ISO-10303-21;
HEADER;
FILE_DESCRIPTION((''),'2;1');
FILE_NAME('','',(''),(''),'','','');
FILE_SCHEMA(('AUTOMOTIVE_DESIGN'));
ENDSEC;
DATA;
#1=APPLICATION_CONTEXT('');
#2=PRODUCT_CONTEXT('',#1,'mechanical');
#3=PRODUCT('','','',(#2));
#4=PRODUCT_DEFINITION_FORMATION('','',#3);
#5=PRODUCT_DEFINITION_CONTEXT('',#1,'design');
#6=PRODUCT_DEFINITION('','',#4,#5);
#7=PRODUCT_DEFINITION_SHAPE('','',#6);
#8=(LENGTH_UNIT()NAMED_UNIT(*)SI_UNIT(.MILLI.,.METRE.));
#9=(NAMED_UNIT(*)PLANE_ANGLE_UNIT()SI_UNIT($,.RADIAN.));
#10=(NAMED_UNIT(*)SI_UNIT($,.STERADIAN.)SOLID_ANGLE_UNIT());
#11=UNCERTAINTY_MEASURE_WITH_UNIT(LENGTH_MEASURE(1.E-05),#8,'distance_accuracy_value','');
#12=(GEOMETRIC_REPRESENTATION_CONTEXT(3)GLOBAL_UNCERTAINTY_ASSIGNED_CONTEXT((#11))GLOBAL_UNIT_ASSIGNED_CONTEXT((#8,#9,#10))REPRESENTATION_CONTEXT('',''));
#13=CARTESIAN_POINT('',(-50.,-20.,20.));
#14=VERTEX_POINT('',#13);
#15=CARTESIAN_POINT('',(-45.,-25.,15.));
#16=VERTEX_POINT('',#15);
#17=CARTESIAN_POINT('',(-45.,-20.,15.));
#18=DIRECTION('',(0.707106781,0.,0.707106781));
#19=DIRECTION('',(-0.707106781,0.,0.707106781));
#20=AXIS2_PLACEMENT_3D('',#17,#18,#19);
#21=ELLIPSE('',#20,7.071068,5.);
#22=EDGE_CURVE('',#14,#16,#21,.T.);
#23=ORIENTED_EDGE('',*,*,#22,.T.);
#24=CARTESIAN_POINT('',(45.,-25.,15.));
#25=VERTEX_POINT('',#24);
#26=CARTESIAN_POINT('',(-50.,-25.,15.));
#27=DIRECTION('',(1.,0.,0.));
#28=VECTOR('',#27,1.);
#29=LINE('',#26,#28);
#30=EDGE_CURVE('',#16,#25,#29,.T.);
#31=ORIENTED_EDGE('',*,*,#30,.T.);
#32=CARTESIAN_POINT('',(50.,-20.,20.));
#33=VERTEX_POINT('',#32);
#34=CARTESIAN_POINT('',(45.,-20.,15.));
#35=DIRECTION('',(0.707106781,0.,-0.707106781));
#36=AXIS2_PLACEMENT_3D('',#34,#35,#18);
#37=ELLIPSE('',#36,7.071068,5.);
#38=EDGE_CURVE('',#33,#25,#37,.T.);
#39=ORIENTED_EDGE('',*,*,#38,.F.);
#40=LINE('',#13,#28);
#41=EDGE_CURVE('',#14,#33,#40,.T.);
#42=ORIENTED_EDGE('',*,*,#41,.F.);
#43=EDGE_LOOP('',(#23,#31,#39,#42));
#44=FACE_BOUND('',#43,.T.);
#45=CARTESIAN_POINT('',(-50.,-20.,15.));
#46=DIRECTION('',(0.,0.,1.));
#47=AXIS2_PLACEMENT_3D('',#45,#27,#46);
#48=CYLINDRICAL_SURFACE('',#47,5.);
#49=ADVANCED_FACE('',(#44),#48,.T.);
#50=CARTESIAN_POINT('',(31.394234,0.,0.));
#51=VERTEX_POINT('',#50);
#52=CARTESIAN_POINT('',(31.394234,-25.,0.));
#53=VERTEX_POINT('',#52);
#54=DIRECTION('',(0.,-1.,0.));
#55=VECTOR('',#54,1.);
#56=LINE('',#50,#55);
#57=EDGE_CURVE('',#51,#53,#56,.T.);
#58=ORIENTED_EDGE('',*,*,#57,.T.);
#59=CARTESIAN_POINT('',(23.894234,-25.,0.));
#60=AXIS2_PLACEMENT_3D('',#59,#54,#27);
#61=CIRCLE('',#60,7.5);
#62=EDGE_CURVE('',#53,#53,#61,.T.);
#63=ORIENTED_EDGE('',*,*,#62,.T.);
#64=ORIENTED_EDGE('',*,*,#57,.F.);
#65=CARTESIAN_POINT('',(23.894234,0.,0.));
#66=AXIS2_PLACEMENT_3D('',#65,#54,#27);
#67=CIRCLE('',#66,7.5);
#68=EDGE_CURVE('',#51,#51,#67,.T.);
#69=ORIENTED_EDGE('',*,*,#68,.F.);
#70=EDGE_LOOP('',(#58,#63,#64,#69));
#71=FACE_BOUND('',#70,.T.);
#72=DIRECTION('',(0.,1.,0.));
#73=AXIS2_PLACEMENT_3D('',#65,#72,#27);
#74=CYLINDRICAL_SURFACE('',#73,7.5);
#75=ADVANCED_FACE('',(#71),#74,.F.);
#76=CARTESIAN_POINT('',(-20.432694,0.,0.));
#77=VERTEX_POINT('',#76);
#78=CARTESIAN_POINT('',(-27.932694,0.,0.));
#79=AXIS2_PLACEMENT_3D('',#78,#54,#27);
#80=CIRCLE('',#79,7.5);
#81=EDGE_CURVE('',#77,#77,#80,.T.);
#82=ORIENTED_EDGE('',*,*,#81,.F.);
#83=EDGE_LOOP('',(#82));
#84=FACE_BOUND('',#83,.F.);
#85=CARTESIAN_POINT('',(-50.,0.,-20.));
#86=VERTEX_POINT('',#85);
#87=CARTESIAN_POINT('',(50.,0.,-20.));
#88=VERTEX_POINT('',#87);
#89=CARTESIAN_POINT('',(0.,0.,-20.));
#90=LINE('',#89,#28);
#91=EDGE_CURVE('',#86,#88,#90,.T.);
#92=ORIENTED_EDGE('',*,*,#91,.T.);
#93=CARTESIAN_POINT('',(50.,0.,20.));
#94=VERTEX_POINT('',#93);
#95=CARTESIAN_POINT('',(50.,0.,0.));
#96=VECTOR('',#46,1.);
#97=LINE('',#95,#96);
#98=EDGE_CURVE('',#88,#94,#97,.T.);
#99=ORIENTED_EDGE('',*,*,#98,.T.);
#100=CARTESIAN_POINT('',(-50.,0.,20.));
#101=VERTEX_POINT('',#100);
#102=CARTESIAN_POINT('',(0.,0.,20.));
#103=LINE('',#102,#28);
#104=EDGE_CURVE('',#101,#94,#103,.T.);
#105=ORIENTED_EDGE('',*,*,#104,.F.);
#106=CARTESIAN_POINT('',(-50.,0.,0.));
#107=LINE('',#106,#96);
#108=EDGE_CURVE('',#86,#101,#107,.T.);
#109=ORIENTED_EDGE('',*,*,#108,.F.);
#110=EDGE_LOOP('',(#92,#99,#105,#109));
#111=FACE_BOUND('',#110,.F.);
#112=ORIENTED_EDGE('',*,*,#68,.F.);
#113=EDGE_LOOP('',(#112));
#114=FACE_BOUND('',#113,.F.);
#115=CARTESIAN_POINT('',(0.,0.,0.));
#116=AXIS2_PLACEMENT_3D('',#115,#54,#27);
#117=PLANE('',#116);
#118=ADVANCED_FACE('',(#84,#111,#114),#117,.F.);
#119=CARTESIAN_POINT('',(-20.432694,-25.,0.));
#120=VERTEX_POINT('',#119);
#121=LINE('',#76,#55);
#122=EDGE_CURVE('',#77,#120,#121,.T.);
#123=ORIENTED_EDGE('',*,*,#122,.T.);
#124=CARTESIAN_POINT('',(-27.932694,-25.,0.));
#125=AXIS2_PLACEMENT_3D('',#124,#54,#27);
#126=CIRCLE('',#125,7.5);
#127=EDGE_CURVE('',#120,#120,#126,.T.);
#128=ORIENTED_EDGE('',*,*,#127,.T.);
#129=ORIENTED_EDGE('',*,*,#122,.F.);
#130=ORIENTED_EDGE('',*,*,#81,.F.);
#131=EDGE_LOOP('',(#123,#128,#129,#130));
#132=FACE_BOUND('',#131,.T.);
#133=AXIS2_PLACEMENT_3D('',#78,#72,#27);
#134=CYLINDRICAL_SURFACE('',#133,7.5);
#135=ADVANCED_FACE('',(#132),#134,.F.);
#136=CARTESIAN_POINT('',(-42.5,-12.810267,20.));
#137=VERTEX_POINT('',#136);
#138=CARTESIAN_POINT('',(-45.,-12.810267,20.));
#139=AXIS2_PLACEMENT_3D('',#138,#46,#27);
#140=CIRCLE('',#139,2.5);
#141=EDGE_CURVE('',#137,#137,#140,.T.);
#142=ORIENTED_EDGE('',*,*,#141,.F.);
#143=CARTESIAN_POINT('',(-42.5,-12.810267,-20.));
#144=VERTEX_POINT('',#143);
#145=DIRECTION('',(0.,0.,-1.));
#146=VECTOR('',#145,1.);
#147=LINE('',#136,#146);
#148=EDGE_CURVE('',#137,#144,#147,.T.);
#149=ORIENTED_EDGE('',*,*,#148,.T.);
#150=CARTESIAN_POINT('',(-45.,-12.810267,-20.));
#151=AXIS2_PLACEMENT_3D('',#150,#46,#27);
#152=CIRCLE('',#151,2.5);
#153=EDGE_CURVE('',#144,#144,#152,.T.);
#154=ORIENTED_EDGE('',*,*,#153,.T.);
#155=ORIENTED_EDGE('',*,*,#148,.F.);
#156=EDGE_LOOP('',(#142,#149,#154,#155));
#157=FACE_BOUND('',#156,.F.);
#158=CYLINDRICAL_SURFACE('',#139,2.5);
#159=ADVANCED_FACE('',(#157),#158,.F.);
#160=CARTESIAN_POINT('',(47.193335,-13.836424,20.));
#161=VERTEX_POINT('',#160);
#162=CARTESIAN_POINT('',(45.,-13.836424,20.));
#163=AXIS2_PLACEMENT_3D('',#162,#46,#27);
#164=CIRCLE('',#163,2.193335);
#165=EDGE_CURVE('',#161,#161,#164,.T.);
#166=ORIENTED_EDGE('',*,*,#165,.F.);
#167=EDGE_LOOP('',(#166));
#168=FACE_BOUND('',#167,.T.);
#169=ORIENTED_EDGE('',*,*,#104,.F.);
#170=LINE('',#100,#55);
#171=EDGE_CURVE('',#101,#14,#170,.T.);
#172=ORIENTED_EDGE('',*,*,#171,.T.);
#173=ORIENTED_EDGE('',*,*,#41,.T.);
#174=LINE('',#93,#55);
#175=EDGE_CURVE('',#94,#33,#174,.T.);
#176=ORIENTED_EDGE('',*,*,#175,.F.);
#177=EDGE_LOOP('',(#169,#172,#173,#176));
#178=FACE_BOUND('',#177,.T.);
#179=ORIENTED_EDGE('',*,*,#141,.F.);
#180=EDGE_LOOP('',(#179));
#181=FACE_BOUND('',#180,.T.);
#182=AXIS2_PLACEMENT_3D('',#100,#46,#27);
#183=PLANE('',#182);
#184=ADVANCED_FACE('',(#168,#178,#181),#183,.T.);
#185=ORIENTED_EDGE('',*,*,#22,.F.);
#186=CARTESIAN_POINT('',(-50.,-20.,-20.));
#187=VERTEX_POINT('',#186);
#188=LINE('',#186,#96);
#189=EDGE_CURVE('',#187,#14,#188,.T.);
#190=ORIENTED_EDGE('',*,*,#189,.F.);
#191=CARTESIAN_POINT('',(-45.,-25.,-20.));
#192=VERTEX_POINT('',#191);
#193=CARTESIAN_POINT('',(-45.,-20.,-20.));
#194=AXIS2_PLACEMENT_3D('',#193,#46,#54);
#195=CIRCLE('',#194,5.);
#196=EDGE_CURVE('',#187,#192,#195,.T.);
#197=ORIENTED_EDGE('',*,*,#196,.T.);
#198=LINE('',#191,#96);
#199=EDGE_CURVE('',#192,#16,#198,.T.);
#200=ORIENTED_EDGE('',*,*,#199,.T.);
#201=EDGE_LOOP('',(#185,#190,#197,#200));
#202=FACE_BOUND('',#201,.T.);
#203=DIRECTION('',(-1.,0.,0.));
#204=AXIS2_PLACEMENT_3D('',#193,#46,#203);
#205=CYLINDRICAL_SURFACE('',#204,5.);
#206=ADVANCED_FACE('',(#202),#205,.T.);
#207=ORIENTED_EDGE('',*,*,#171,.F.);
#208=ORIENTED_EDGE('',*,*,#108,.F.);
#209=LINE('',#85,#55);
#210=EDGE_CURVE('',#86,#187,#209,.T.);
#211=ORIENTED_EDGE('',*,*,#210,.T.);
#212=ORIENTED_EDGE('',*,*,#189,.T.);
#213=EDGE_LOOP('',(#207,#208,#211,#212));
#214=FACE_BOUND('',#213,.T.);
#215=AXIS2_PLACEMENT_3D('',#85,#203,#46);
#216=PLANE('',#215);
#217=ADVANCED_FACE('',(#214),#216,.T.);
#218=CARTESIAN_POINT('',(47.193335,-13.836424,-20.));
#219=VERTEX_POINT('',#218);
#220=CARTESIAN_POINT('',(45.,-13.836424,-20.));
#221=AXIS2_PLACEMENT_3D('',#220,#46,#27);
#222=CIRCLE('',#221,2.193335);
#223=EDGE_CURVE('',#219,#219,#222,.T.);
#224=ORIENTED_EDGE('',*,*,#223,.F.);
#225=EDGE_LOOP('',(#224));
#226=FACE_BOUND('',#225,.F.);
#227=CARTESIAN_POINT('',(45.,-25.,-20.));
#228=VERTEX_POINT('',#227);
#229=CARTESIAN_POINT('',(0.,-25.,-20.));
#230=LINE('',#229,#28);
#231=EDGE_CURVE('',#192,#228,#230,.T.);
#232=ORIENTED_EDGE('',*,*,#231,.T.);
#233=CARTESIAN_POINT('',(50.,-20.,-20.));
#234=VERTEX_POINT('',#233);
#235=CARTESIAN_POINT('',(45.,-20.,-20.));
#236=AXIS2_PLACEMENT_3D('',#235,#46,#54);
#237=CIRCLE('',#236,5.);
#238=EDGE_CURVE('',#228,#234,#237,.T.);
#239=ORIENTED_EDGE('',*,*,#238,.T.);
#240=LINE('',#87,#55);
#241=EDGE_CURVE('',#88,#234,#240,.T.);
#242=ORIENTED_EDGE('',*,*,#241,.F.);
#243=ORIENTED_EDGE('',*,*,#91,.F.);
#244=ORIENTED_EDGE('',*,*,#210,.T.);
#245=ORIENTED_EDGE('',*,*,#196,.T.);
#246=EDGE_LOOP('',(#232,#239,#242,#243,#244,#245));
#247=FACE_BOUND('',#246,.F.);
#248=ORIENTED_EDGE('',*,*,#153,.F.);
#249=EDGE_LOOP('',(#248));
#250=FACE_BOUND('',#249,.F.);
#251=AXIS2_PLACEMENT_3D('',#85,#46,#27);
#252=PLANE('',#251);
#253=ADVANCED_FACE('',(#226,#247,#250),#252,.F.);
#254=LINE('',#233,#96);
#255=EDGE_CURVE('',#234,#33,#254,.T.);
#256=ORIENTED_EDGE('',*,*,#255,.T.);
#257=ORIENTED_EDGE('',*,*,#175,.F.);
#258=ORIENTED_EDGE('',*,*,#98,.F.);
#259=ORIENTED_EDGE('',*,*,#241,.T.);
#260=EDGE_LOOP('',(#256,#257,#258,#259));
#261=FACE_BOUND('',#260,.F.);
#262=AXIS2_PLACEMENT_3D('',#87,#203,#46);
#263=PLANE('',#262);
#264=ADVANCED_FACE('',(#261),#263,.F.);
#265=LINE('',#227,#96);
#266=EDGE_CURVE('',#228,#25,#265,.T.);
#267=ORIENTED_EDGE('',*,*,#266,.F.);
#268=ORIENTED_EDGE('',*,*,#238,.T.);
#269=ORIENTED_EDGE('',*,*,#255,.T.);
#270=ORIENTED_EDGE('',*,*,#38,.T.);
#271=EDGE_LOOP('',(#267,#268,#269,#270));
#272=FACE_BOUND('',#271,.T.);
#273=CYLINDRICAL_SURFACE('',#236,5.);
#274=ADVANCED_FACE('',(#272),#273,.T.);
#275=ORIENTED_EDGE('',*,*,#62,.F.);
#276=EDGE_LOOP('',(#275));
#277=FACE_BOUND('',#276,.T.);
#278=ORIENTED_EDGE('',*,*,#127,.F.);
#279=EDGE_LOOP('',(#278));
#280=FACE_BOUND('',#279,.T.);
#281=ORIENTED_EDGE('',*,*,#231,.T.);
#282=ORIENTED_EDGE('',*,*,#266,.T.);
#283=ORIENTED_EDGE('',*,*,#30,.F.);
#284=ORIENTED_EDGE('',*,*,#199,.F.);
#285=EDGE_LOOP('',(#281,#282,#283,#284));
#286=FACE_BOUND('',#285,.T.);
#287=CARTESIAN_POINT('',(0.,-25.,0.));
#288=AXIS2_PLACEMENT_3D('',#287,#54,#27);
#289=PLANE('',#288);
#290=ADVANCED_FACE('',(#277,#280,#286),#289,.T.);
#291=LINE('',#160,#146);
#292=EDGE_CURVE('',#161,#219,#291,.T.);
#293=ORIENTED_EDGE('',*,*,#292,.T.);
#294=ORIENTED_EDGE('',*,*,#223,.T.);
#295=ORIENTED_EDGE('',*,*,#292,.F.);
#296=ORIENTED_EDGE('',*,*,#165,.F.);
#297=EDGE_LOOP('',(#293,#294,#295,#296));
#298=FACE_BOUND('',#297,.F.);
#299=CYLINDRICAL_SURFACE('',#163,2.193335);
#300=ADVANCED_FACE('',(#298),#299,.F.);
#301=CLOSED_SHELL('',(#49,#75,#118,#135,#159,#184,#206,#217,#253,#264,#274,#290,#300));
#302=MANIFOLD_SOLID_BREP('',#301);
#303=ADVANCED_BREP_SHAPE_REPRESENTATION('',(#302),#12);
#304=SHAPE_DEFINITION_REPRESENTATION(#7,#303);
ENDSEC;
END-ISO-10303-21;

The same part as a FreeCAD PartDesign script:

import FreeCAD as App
import Part
import Sketcher

V = App.Vector
Q = App.Units.Quantity


def edges_at(feature, points):
    """Names of the edges that pass closest to the given points."""
    edges = feature.Shape.Edges
    near = lambda p: min(range(len(edges)), key=lambda i: edges[i].distToShape(Part.Vertex(*p))[0])
    return sorted({f"Edge{near(p) + 1}" for p in points})

doc = App.newDocument("Part")
body = doc.addObject("PartDesign::Body", "Body")

# Sketch on XZ plane
sketch1 = doc.addObject("Sketcher::SketchObject", "Sketch")
body.addObject(sketch1)
sketch1.AttachmentSupport = (doc.XZ_Plane, [""])
sketch1.MapMode = "FlatFace"
sketch1.addGeometry([
    Part.LineSegment(V(-50, 20, 0), V(-50, -20, 0)),  # 0
    Part.LineSegment(V(-50, -20, 0), V(50, -20, 0)),  # 1
    Part.LineSegment(V(50, -20, 0), V(50, 20, 0)),  # 2
    Part.LineSegment(V(50, 20, 0), V(-50, 20, 0)),  # 3
    Part.Circle(V(-28, 0, 0), V(0, 0, 1), 8),  # 4
    Part.Circle(V(24, 0, 0), V(0, 0, 1), 8),  # 5
], False)
sketch1.addConstraint([
    Sketcher.Constraint("Coincident", 0, 2, 1, 1),
    Sketcher.Constraint("Coincident", 1, 2, 2, 1),
    Sketcher.Constraint("Coincident", 2, 2, 3, 1),
    Sketcher.Constraint("Coincident", 3, 2, 0, 1),
    Sketcher.Constraint("Vertical", 0),
    Sketcher.Constraint("Horizontal", 1),
    Sketcher.Constraint("Vertical", 2),
    Sketcher.Constraint("Horizontal", 3),
    Sketcher.Constraint("Equal", 4, 5),
    Sketcher.Constraint("Symmetric", 0, 2, 2, 2, -1, 1),
    Sketcher.Constraint("PointOnObject", 4, 3, -1),
    Sketcher.Constraint("PointOnObject", 5, 3, -1),
    Sketcher.Constraint("Diameter", 4, Q("15 mm")),
    Sketcher.Constraint("DistanceX", 1, 1, 1, 2, Q("100 mm")),
    Sketcher.Constraint("DistanceY", 0, 2, 0, 1, Q("40 mm")),
    Sketcher.Constraint("DistanceX", 4, 3, 5, 3, Q("51.826928 mm")),
    Sketcher.Constraint("DistanceX", 4, 3, -1, 1, Q("27.932694 mm")),
])
pad1 = doc.addObject("PartDesign::Pad", "Pad")
body.addObject(pad1)
pad1.Profile = sketch1
pad1.Length = 25

# Sketch on XY plane
sketch2 = doc.addObject("Sketcher::SketchObject", "Sketch001")
body.addObject(sketch2)
sketch2.AttachmentSupport = (doc.XY_Plane, [""])
sketch2.MapMode = "FlatFace"
sketch2.AttachmentOffset = App.Placement(V(0, 0, 20), App.Rotation())
sketch2.addGeometry([
    Part.Circle(V(-45, -12.8, 0), V(0, 0, 1), 2.5),
    Part.Circle(V(45, -13.8, 0), V(0, 0, 1), 2.2),
], False)
sketch2.addConstraint([
    Sketcher.Constraint("Diameter", 0, Q("5 mm")),
    Sketcher.Constraint("DistanceX", 0, 3, -1, 1, Q("45 mm")),
    Sketcher.Constraint("DistanceX", -1, 1, 1, 3, Q("45 mm")),
    Sketcher.Constraint("Diameter", 1, Q("4.38667 mm")),
    Sketcher.Constraint("DistanceY", 0, 3, -1, 1, Q("12.810267 mm")),
    Sketcher.Constraint("DistanceY", 1, 3, -1, 1, Q("13.836424 mm")),
])
pocket1 = doc.addObject("PartDesign::Pocket", "Pocket")
body.addObject(pocket1)
pocket1.Profile = sketch2
pocket1.Type = "ThroughAll"
doc.recompute()

fillet = doc.addObject("PartDesign::Fillet", "Fillet")
body.addObject(fillet)
fillet.Base = (pocket1, edges_at(pocket1, [(-50, -25, 0), (0, -25, 20), (50, -25, 0)]))
fillet.Radius = 5

doc.recompute()
